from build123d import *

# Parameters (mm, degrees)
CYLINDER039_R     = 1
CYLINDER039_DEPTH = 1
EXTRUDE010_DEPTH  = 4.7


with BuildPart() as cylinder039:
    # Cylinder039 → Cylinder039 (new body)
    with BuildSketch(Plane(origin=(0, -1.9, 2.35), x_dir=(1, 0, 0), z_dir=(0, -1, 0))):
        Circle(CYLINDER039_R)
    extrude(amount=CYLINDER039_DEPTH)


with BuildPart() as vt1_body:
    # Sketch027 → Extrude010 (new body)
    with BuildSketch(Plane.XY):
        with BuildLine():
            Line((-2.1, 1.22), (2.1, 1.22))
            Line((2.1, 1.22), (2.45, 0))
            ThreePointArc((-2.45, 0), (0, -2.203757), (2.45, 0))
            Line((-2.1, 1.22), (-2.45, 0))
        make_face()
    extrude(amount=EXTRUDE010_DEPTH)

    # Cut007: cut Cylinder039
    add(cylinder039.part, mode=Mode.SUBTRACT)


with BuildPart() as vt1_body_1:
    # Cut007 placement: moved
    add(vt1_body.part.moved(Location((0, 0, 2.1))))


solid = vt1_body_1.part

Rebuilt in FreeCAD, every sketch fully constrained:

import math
import FreeCAD as App
import Part
import Sketcher
from FreeCAD import Vector

doc = App.newDocument("Part")
body = doc.addObject("PartDesign::Body", "Body")

sketch1 = body.newObject("Sketcher::SketchObject", "Sketch")
sketch1.AttachmentSupport = (doc.getObject("XZ_Plane"), [""])
sketch1.MapMode = "FlatFace"
sketch1.AttachmentOffset = App.Placement(Vector(0, 0, 1.9), App.Rotation())
sketch1.addGeometry(Part.Circle(Vector(0, 2.35, 0), Vector(0, 0, 1), 1), False)
sketch1.addConstraint([
    Sketcher.Constraint("PointOnObject", 0, 3, -2),
    Sketcher.Constraint("Diameter", 0, 2.0),
    Sketcher.Constraint("DistanceY", -1, 1, 0, 3, 2.35),
])
pad1 = body.newObject("PartDesign::Pad", "Pad")
pad1.Profile = sketch1
pad1.Length = 1
body2 = doc.addObject("PartDesign::Body", "Body001")

sketch2 = body2.newObject("Sketcher::SketchObject", "Sketch001")
sketch2.AttachmentSupport = (doc.getObject("XY_Plane001"), [""])
sketch2.MapMode = "FlatFace"
sketch2.addGeometry([
    Part.LineSegment(Vector(2.1, 1.22, 0), Vector(-2.1, 1.22, 0)),
    Part.LineSegment(Vector(-2.1, 1.22, 0), Vector(-2.45, 0, 0)),
    Part.ArcOfCircle(Part.Circle(Vector(0, 0.26, 0), Vector(0, 0, 1), 2.463757), math.radians(-173.942297), math.radians(-6.057703)),
    Part.LineSegment(Vector(2.45, 0, 0), Vector(2.1, 1.22, 0)),
], False)
sketch2.addConstraint([
    Sketcher.Constraint("Coincident", 0, 2, 1, 1),
    Sketcher.Constraint("Coincident", 1, 2, 2, 1),
    Sketcher.Constraint("Coincident", 2, 2, 3, 1),
    Sketcher.Constraint("Coincident", 3, 2, 0, 1),
    Sketcher.Constraint("Horizontal", 0),
    Sketcher.Constraint("Symmetric", 1, 2, 2, 2, -1, 1),
    Sketcher.Constraint("PointOnObject", 2, 3, -2),
    Sketcher.Constraint("Equal", 1, 3),
    Sketcher.Constraint("DistanceX", 0, 2, 0, 1, 4.2),
    Sketcher.Constraint("DistanceX", 1, 2, 2, 2, 4.9),
    Sketcher.Constraint("DistanceY", -1, 1, 2, 3, 0.26),
    Sketcher.Constraint("DistanceY", -1, 1, 0, 2, 1.22),
])
pad2 = body2.newObject("PartDesign::Pad", "Pad001")
pad2.Profile = sketch2
pad2.Length = 4.7
doc.recompute()

boolean = body2.newObject("PartDesign::Boolean", "Boolean")
boolean.Type = "Cut"
boolean.addObjects([body])
body3 = doc.addObject("PartDesign::Body", "Body002")
doc.recompute()

body2.Placement = App.Placement(Vector(0, 0, 2.1), App.Rotation(Vector(0, 0, 1), 0))
boolean2 = body3.newObject("PartDesign::Boolean", "Boolean001")
boolean2.Type = "Fuse"
boolean2.addObjects([body2])

doc.recompute()
